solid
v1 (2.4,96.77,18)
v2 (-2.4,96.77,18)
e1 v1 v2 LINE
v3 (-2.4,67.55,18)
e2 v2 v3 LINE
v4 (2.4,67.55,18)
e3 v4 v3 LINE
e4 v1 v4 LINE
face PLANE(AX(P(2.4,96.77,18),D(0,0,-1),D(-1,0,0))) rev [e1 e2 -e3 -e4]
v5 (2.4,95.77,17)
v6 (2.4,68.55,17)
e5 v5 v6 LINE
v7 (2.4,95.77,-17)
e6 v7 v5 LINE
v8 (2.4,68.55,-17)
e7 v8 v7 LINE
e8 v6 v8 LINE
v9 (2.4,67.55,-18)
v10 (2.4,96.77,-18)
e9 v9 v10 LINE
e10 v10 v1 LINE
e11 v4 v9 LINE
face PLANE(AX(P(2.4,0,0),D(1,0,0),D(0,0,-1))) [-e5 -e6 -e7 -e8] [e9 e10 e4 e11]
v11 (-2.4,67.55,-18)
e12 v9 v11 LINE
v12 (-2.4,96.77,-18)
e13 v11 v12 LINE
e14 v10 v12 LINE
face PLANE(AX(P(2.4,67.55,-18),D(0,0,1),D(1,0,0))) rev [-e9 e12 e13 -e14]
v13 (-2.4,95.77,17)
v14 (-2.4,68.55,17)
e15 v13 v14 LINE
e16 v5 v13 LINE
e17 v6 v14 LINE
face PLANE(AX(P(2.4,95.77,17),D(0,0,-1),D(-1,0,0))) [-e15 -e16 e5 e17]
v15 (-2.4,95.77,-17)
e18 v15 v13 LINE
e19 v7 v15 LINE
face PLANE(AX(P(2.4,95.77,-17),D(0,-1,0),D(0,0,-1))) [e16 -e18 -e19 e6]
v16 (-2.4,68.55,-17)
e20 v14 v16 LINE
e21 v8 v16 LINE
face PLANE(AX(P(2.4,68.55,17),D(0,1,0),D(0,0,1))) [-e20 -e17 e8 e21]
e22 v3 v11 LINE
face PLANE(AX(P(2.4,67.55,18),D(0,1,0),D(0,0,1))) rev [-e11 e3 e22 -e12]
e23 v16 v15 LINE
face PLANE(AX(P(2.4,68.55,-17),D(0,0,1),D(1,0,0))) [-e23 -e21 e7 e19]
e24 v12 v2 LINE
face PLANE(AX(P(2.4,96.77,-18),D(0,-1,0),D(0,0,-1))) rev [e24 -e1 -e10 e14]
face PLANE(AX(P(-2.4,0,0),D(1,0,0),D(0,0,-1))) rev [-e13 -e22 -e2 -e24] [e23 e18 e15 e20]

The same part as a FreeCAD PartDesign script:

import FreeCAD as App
import Part
import Sketcher
from FreeCAD import Vector

doc = App.newDocument("Part")
body = doc.addObject("PartDesign::Body", "Body")

# Sketch on YZ plane
sketch1 = body.newObject("Sketcher::SketchObject", "Sketch")
sketch1.AttachmentSupport = (doc.getObject("YZ_Plane"), [""])
sketch1.MapMode = "FlatFace"
sketch1.addGeometry([
    Part.LineSegment(Vector(97, 18, 0), Vector(68, 18, 0)),  # 0
    Part.LineSegment(Vector(68, 18, 0), Vector(68, -18, 0)),  # 1
    Part.LineSegment(Vector(68, -18, 0), Vector(97, -18, 0)),  # 2
    Part.LineSegment(Vector(97, -18, 0), Vector(97, 18, 0)),  # 3
    Part.LineSegment(Vector(69, -17, 0), Vector(69, 17, 0)),  # 4
    Part.LineSegment(Vector(69, 17, 0), Vector(96, 17, 0)),  # 5
    Part.LineSegment(Vector(96, 17, 0), Vector(96, -17, 0)),  # 6
    Part.LineSegment(Vector(96, -17, 0), Vector(69, -17, 0)),  # 7
], False)
sketch1.addConstraint([
    Sketcher.Constraint("Coincident", 0, 2, 1, 1),
    Sketcher.Constraint("Coincident", 1, 2, 2, 1),
    Sketcher.Constraint("Coincident", 2, 2, 3, 1),
    Sketcher.Constraint("Coincident", 3, 2, 0, 1),
    Sketcher.Constraint("Coincident", 4, 2, 5, 1),
    Sketcher.Constraint("Coincident", 5, 2, 6, 1),
    Sketcher.Constraint("Coincident", 6, 2, 7, 1),
    Sketcher.Constraint("Coincident", 7, 2, 4, 1),
    Sketcher.Constraint("Horizontal", 0),
    Sketcher.Constraint("Vertical", 1),
    Sketcher.Constraint("Horizontal", 2),
    Sketcher.Constraint("Vertical", 3),
    Sketcher.Constraint("Vertical", 4),
    Sketcher.Constraint("Horizontal", 5),
    Sketcher.Constraint("Vertical", 6),
    Sketcher.Constraint("Horizontal", 7),
    Sketcher.Constraint("DistanceY", 1, 2, 1, 1, 36.0),
    Sketcher.Constraint("DistanceY", 4, 1, 4, 2, 34.0),
    Sketcher.Constraint("DistanceY", -1, 1, 0, 2, 18.0),
    Sketcher.Constraint("DistanceY", -1, 1, 4, 2, 17.0),
    Sketcher.Constraint("DistanceX", 0, 2, 4, 2, 1.0),
    Sketcher.Constraint("DistanceX", 5, 2, 3, 2, 1.0),
    Sketcher.Constraint("DistanceX", 0, 2, 0, 1, 29.22),
    Sketcher.Constraint("DistanceX", -1, 1, 0, 2, 67.55),
])
pad1 = body.newObject("PartDesign::Pad", "Pad")
pad1.Profile = sketch1
pad1.Length = 4.8
pad1.Midplane = True

doc.recompute()
